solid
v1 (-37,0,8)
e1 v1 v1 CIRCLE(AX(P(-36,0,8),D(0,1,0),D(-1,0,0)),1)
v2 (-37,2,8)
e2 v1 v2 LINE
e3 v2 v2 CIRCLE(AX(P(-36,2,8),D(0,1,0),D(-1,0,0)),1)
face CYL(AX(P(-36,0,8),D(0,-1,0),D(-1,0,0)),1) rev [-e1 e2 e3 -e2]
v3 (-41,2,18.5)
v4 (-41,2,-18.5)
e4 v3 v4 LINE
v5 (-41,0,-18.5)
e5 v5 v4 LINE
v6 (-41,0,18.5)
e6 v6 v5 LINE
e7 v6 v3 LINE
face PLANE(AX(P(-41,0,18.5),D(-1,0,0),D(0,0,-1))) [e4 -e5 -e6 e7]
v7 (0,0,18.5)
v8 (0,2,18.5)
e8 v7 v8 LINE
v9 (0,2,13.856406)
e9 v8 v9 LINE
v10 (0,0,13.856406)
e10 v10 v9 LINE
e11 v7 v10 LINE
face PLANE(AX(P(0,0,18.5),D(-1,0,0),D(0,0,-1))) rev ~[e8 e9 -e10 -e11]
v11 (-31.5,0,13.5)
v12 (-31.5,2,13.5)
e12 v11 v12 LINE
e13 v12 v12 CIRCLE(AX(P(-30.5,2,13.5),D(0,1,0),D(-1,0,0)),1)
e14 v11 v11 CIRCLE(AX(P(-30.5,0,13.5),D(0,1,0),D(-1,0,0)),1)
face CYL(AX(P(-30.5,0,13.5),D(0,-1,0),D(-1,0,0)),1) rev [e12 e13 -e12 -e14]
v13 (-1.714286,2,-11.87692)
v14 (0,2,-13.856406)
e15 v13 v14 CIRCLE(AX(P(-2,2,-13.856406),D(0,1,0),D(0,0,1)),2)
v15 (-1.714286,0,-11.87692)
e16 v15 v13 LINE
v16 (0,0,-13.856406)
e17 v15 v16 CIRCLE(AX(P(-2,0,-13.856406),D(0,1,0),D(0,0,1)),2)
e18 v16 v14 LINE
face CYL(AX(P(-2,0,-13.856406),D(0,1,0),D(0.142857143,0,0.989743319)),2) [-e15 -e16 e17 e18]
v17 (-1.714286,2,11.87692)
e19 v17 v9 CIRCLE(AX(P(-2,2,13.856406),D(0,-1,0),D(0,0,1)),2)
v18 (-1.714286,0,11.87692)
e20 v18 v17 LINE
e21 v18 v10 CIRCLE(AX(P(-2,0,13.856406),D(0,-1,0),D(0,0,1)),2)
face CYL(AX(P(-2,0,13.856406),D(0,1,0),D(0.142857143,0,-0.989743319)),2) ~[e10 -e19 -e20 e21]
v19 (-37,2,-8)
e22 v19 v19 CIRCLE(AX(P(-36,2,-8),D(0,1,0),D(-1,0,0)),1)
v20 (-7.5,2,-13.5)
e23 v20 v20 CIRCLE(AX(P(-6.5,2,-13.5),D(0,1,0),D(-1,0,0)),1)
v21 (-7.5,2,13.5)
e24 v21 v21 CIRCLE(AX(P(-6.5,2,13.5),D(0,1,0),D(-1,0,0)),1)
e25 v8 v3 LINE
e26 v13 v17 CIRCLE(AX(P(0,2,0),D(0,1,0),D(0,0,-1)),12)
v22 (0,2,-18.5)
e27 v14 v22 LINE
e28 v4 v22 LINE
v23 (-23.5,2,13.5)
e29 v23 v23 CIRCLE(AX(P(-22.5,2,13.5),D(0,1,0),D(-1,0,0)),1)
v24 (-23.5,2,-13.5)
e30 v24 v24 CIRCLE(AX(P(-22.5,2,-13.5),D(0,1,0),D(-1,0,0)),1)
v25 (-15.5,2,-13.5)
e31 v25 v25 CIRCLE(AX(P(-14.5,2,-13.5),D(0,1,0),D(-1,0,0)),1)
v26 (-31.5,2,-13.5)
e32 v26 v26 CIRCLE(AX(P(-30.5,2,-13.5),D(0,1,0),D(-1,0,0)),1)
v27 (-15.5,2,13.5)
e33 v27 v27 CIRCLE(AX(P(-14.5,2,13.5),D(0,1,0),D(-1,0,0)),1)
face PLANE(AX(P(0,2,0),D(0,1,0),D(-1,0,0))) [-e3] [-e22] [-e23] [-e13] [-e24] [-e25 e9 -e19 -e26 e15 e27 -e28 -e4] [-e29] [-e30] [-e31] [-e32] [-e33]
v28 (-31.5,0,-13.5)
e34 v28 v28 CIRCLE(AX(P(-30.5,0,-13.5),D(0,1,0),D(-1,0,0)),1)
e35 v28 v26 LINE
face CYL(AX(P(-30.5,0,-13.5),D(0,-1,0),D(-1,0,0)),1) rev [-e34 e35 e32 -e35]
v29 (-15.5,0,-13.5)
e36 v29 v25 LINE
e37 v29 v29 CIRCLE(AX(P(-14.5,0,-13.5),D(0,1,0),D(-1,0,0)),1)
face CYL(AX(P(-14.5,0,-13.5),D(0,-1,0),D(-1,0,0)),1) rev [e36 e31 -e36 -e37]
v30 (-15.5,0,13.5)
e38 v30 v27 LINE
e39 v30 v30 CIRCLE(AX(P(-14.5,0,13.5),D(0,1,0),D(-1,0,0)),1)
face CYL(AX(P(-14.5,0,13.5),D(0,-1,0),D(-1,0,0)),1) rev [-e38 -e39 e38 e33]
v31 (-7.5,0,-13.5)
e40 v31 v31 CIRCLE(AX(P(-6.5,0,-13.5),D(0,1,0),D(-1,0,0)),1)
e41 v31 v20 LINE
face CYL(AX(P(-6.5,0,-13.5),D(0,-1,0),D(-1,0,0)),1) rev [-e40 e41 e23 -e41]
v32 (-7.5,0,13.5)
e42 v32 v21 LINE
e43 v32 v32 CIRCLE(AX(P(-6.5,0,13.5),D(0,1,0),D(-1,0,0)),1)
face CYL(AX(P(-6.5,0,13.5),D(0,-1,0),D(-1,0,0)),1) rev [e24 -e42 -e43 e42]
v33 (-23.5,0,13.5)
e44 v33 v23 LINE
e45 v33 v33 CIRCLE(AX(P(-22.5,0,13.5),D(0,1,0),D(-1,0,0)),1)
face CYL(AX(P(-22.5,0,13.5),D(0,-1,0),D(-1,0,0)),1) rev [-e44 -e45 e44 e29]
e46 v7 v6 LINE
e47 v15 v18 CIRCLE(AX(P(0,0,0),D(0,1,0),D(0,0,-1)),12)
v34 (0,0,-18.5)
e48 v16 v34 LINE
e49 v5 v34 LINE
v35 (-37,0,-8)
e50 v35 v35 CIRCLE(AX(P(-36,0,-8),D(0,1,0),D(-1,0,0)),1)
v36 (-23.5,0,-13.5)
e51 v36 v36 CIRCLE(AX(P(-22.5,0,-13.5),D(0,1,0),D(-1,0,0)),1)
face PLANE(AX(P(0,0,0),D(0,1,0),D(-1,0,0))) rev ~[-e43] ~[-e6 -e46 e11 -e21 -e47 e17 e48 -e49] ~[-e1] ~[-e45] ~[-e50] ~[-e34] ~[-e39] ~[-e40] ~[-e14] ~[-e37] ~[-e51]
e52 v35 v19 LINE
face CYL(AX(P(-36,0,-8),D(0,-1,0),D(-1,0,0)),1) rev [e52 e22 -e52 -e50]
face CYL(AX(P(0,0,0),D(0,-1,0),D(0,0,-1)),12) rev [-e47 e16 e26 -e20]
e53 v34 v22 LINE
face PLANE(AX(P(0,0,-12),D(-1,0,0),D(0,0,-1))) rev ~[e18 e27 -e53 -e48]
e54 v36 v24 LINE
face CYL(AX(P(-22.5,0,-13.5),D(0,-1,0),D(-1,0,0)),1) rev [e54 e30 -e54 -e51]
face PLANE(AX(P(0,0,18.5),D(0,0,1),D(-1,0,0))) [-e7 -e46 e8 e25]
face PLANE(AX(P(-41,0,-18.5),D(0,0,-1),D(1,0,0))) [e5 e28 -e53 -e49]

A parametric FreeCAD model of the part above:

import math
import FreeCAD as App
import Part
import Sketcher

V = App.Vector
Q = App.Units.Quantity


def edges_at(feature, points):
    """Names of the edges that pass closest to the given points."""
    edges = feature.Shape.Edges
    near = lambda p: min(range(len(edges)), key=lambda i: edges[i].distToShape(Part.Vertex(*p))[0])
    return sorted({f"Edge{near(p) + 1}" for p in points})

doc = App.newDocument("Part")
params = doc.addObject("Spreadsheet::Sheet", "Params")
for row, (alias, value) in enumerate([
    ("sketch1_diameter", "2 mm"),
    ("sketch1_radius", "12 mm"),
    ("sketch1_height", "6.5 mm"),
    ("pad1_length", "2 mm"),
    ("fillet_radius", "2 mm"),
    ("fillet2_radius", "2 mm"),
], start=1):
    params.set(f"A{row}", alias)
    params.set(f"B{row}", "=" + value)
    params.setAlias(f"B{row}", alias)

body = doc.addObject("PartDesign::Body", "Body")

sketch1 = body.newObject("Sketcher::SketchObject", "Sketch")
sketch1.AttachmentSupport = (doc.getObject("XZ_Plane"), [""])
sketch1.MapMode = "FlatFace"
sketch1.addGeometry([
    Part.LineSegment(V(-41, 18.5, 0), V(0, 18.5, 0)),
    Part.LineSegment(V(0, 18.5, 0), V(0, 12, 0)),
    Part.ArcOfCircle(Part.Circle(V(0, 0, 0), V(0, 0, 1), 12), math.radians(90), math.radians(270)),
    Part.LineSegment(V(0, -12, 0), V(0, -18.5, 0)),
    Part.LineSegment(V(0, -18.5, 0), V(-41, -18.5, 0)),
    Part.LineSegment(V(-41, -18.5, 0), V(-41, 18.5, 0)),
    Part.Circle(V(-6.5, -13.5, 0), V(0, 0, 1), 1),
    Part.Circle(V(-14.5, -13.5, 0), V(0, 0, 1), 1),
    Part.Circle(V(-22.5, -13.5, 0), V(0, 0, 1), 1),
    Part.Circle(V(-30.5, -13.5, 0), V(0, 0, 1), 1),
    Part.Circle(V(-36, -8, 0), V(0, 0, 1), 1),
    Part.Circle(V(-6.5, 13.5, 0), V(0, 0, 1), 1),
    Part.Circle(V(-14.5, 13.5, 0), V(0, 0, 1), 1),
    Part.Circle(V(-36, 8, 0), V(0, 0, 1), 1),
    Part.Circle(V(-22.5, 13.5, 0), V(0, 0, 1), 1),
    Part.Circle(V(-30.5, 13.5, 0), V(0, 0, 1), 1),
], False)
sketch1.addConstraint([
    Sketcher.Constraint("Coincident", 0, 2, 1, 1),
    Sketcher.Constraint("Coincident", 1, 2, 2, 1),
    Sketcher.Constraint("Coincident", 2, 2, 3, 1),
    Sketcher.Constraint("Coincident", 3, 2, 4, 1),
    Sketcher.Constraint("Coincident", 4, 2, 5, 1),
    Sketcher.Constraint("Coincident", 5, 2, 0, 1),
    Sketcher.Constraint("Horizontal", 0),
    Sketcher.Constraint("Vertical", 1),
    Sketcher.Constraint("Vertical", 3),
    Sketcher.Constraint("Horizontal", 4),
    Sketcher.Constraint("Vertical", 5),
    Sketcher.Constraint("Coincident", 2, 3, -1, 1),
    Sketcher.Constraint("Equal", 6, 7),
    Sketcher.Constraint("Equal", 7, 8),
    Sketcher.Constraint("Equal", 8, 9),
    Sketcher.Constraint("Equal", 9, 10),
    Sketcher.Constraint("Equal", 10, 11),
    Sketcher.Constraint("Equal", 11, 12),
    Sketcher.Constraint("Equal", 12, 13),
    Sketcher.Constraint("Equal", 13, 14),
    Sketcher.Constraint("Equal", 14, 15),
    Sketcher.Constraint("Symmetric", 0, 2, 3, 2, -1, 1),
    Sketcher.Constraint("Symmetric", 6, 3, 11, 3, -1),
    Sketcher.Constraint("Symmetric", 7, 3, 12, 3, -1),
    Sketcher.Constraint("Symmetric", 10, 3, 13, 3, -1),
    Sketcher.Constraint("Symmetric", 8, 3, 14, 3, -1),
    Sketcher.Constraint("Symmetric", 9, 3, 15, 3, -1),
    Sketcher.Constraint("PointOnObject", 0, 2, -2),
    Sketcher.Constraint("Horizontal", 6, 3, 7, 3),
    Sketcher.Constraint("Horizontal", 7, 3, 8, 3),
    Sketcher.Constraint("Horizontal", 8, 3, 9, 3),
    Sketcher.Constraint("Diameter", 6, Q("2 mm")),
    Sketcher.Constraint("Radius", 2, Q("12 mm")),
    Sketcher.Constraint("DistanceY", 1, 2, 1, 1, Q("6.5 mm")),
    Sketcher.Constraint("DistanceX", 10, 3, -1, 1, Q("36 mm")),
    Sketcher.Constraint("DistanceY", 10, 3, -1, 1, Q("8 mm")),
    Sketcher.Constraint("DistanceX", 7, 3, 6, 3, Q("8 mm")),
    Sketcher.Constraint("DistanceX", 8, 3, 7, 3, Q("8 mm")),
    Sketcher.Constraint("DistanceX", 9, 3, 8, 3, Q("8 mm")),
    Sketcher.Constraint("DistanceY", 11, 3, 0, 2, Q("5 mm")),
    Sketcher.Constraint("DistanceX", 4, 2, 10, 3, Q("5 mm")),
    Sketcher.Constraint("DistanceX", 6, 3, -1, 1, Q("6.5 mm")),
])
sketch1.setExpression("Constraints[31]", "Params.sketch1_diameter")
sketch1.setExpression("Constraints[32]", "Params.sketch1_radius")
sketch1.setExpression("Constraints[33]", "Params.sketch1_height")
pad1 = body.newObject("PartDesign::Pad", "Pad")
pad1.Profile = sketch1
pad1.setExpression("Length", "Params.pad1_length")
pad1.Reversed = True
doc.recompute()

fillet = body.newObject("PartDesign::Fillet", "Fillet")
fillet.Base = (pad1, edges_at(pad1, [(0, 1, 12)]))
fillet.setExpression("Radius", "Params.fillet_radius")
doc.recompute()

fillet2 = body.newObject("PartDesign::Fillet", "Fillet001")
fillet2.Base = (fillet, edges_at(fillet, [(0, 1, -12)]))
fillet2.setExpression("Radius", "Params.fillet2_radius")

doc.recompute()
